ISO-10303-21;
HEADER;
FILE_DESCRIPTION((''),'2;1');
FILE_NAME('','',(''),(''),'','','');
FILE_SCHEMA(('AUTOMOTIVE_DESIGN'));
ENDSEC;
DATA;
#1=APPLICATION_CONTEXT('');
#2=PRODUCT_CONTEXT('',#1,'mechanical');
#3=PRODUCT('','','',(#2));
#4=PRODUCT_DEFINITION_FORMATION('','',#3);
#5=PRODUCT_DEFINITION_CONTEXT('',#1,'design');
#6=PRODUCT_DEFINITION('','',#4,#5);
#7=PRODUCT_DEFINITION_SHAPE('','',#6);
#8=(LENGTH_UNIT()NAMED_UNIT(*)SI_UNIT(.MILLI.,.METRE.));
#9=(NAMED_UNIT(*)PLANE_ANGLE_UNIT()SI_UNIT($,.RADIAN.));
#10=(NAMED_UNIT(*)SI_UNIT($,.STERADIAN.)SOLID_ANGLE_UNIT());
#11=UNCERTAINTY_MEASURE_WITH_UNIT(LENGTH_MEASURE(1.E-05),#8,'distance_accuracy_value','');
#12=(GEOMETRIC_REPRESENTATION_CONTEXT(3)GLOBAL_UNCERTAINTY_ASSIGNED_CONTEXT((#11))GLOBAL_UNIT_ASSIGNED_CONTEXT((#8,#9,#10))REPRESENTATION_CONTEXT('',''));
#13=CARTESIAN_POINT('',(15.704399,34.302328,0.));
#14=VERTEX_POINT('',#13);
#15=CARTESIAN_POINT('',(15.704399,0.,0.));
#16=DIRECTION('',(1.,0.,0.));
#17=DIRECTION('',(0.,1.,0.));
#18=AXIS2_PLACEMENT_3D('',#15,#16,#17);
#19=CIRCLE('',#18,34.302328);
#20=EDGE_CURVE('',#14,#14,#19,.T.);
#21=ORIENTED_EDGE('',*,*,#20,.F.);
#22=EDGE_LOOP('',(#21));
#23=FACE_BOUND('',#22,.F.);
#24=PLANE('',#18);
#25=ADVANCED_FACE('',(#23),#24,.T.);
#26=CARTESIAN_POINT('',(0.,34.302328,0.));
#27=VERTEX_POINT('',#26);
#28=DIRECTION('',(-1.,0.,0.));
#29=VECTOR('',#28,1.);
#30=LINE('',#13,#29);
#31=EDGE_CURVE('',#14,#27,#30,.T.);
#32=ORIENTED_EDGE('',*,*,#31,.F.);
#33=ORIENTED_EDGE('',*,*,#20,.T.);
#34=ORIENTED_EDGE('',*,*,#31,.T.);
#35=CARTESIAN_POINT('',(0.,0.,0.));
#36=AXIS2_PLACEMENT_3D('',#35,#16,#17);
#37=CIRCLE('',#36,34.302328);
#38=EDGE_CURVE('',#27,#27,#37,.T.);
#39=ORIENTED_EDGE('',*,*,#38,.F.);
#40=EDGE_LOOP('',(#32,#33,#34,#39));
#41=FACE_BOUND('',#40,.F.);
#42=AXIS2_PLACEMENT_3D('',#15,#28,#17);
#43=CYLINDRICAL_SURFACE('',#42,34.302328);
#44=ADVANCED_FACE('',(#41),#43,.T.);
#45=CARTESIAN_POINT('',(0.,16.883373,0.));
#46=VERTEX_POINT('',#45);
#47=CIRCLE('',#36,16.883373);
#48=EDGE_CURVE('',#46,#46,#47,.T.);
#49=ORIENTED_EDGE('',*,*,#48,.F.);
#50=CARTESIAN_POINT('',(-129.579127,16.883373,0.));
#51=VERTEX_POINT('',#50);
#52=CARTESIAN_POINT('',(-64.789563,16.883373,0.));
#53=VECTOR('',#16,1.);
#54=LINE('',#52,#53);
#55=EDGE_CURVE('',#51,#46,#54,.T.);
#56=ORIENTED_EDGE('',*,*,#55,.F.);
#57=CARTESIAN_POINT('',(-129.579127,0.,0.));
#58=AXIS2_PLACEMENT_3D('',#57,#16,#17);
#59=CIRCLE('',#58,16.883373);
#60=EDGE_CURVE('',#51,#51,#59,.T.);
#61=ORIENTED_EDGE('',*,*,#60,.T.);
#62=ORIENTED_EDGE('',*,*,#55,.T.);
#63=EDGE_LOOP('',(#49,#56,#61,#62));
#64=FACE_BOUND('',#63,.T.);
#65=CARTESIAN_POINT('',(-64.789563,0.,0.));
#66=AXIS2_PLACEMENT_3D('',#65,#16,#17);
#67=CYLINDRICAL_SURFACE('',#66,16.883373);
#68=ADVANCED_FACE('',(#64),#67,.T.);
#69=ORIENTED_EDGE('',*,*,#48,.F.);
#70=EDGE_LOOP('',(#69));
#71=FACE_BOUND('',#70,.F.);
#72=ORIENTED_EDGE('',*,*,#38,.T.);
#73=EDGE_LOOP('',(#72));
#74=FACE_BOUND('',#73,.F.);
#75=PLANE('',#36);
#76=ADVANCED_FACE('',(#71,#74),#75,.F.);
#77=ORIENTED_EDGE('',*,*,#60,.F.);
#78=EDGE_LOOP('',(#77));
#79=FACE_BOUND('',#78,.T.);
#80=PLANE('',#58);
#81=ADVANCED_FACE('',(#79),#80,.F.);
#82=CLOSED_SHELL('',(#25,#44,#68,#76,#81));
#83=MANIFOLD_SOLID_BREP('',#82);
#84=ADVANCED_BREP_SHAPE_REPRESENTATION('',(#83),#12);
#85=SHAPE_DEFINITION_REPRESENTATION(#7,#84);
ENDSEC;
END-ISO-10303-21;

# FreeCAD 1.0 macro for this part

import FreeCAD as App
import Part
import Sketcher
from FreeCAD import Vector


def add_polygon(sketch, points):
    """Adds a closed chain of lines whose ends are joined by coincident constraints."""
    first, n = sketch.GeometryCount, len(points)
    for a, b in zip(points, points[1:] + points[:1]):
        sketch.addGeometry(Part.LineSegment(App.Vector(*a, 0), App.Vector(*b, 0)), False)
    for i in range(n):
        sketch.addConstraint(Sketcher.Constraint("Coincident", first + i, 2, first + (i + 1) % n, 1))

doc = App.newDocument("Part")
body = doc.addObject("PartDesign::Body", "Body")

sketch1 = body.newObject("Sketcher::SketchObject", "Sketch")
sketch1.AttachmentSupport = (doc.getObject("XY_Plane"), [""])
sketch1.MapMode = "FlatFace"
add_polygon(sketch1, [(-130, 17), (-130, 0), (16, 0), (16, 34), (0, 34), (0, 17)])
sketch1.addConstraint([
    Sketcher.Constraint("Vertical", 0),
    Sketcher.Constraint("Horizontal", 1),
    Sketcher.Constraint("Vertical", 2),
    Sketcher.Constraint("Horizontal", 3),
    Sketcher.Constraint("Vertical", 4),
    Sketcher.Constraint("Horizontal", 5),
    Sketcher.Constraint("PointOnObject", 0, 2, -1),
    Sketcher.Constraint("PointOnObject", 3, 2, -2),
    Sketcher.Constraint("DistanceX", 3, 2, 3, 1, 15.704399),
    Sketcher.Constraint("DistanceX", 1, 1, 1, 2, 145.283526),
    Sketcher.Constraint("DistanceY", 0, 2, 0, 1, 16.883373),
    Sketcher.Constraint("DistanceY", 2, 1, 2, 2, 34.302328),
])
revolution = body.newObject("PartDesign::Revolution", "Revolution")
revolution.Profile = sketch1
revolution.ReferenceAxis = (sketch1, ["H_Axis"])
revolution.Angle = 360

doc.recompute()
